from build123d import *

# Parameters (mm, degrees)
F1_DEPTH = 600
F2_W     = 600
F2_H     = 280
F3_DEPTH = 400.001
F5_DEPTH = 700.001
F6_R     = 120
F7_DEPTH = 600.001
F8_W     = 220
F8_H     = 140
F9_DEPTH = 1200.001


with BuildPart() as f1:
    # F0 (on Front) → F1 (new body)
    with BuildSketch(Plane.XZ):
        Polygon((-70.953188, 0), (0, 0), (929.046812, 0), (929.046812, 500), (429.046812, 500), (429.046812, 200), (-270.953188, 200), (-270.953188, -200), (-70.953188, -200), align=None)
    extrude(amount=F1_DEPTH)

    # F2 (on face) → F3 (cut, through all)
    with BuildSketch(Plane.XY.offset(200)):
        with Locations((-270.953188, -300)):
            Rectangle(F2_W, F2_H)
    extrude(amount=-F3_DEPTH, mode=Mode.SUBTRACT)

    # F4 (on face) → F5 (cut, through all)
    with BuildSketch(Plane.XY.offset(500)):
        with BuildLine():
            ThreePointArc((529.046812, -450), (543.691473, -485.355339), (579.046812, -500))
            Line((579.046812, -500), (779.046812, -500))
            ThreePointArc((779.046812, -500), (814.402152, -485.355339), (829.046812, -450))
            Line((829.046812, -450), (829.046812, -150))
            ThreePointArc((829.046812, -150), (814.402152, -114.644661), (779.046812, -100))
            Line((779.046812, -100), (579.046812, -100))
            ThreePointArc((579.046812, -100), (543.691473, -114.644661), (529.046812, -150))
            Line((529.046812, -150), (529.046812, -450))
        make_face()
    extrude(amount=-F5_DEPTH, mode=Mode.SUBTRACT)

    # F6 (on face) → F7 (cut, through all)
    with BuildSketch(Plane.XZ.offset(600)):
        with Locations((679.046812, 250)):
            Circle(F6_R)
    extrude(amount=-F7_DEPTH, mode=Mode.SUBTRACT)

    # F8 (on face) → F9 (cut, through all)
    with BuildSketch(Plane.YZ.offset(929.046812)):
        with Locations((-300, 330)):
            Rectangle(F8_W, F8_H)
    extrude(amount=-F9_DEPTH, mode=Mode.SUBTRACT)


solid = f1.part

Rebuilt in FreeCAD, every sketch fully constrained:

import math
import FreeCAD as App
import Part
import Sketcher
from FreeCAD import Vector


def add_polygon(sketch, points):
    """Adds a closed chain of lines whose ends are joined by coincident constraints."""
    first, n = sketch.GeometryCount, len(points)
    for a, b in zip(points, points[1:] + points[:1]):
        sketch.addGeometry(Part.LineSegment(App.Vector(*a, 0), App.Vector(*b, 0)), False)
    for i in range(n):
        sketch.addConstraint(Sketcher.Constraint("Coincident", first + i, 2, first + (i + 1) % n, 1))

doc = App.newDocument("Part")
params = doc.addObject("Spreadsheet::Sheet", "Params")
for row, (alias, value) in enumerate([
    ("sketch1_width", "1000 mm"),
    ("sketch1_width2", "500 mm"),
    ("sketch1_width3", "700 mm"),
    ("sketch1_height", "300 mm"),
    ("pad1_length", "600 mm"),
    ("sketch2_width", "600 mm"),
    ("sketch2_height", "280 mm"),
    ("sketch3_radius", "50 mm"),
    ("sketch3_width", "200 mm"),
    ("sketch3_height", "300 mm"),
    ("sketch4_diameter", "240 mm"),
    ("sketch5_width", "220 mm"),
    ("sketch5_height", "140 mm"),
], start=1):
    params.set(f"A{row}", alias)
    params.set(f"B{row}", "=" + value)
    params.setAlias(f"B{row}", alias)

body = doc.addObject("PartDesign::Body", "Body")

sketch1 = body.newObject("Sketcher::SketchObject", "Sketch")
sketch1.AttachmentSupport = (doc.getObject("XZ_Plane"), [""])
sketch1.MapMode = "FlatFace"
add_polygon(sketch1, [(-71, 0), (929, 0), (929, 500), (429, 500), (429, 200), (-271, 200), (-271, -200), (-71, -200)])
sketch1.addConstraint(Sketcher.Constraint("Horizontal", 0))
sketch1.addConstraint(Sketcher.Constraint("Vertical", 1))
sketch1.addConstraint(Sketcher.Constraint("Horizontal", 2))
sketch1.addConstraint(Sketcher.Constraint("Vertical", 3))
sketch1.addConstraint(Sketcher.Constraint("Horizontal", 4))
sketch1.addConstraint(Sketcher.Constraint("Vertical", 5))
sketch1.addConstraint(Sketcher.Constraint("Horizontal", 6))
sketch1.addConstraint(Sketcher.Constraint("Vertical", 7))
sketch1.addConstraint(Sketcher.Constraint("PointOnObject", 0, 2, -1))
sketch1.addConstraint(Sketcher.Constraint("Equal", 2, 1))
sketch1.addConstraint(Sketcher.Constraint("Equal", 6, 7))
sketch1.addConstraint(Sketcher.Constraint("DistanceX", 0, 1, 0, 2, 1000.0))
sketch1.addConstraint(Sketcher.Constraint("DistanceX", 2, 2, 2, 1, 500.0))
sketch1.addConstraint(Sketcher.Constraint("DistanceX", 4, 2, 4, 1, 700.0))
sketch1.addConstraint(Sketcher.Constraint("DistanceY", 3, 2, 3, 1, 300.0))
sketch1.addConstraint(Sketcher.Constraint("DistanceX", -1, 1, 0, 2, 929.046812))
sketch1.setExpression("Constraints[19]", "Params.sketch1_width")
sketch1.setExpression("Constraints[20]", "Params.sketch1_width2")
sketch1.setExpression("Constraints[21]", "Params.sketch1_width3")
sketch1.setExpression("Constraints[22]", "Params.sketch1_height")
pad1 = body.newObject("PartDesign::Pad", "Pad")
pad1.Profile = sketch1
pad1.setExpression("Length", "Params.pad1_length")

sketch2 = body.newObject("Sketcher::SketchObject", "Sketch001")
sketch2.AttachmentSupport = (doc.getObject("XY_Plane"), [""])
sketch2.MapMode = "FlatFace"
sketch2.AttachmentOffset = App.Placement(Vector(0, 0, 200), App.Rotation())
add_polygon(sketch2, [(-571, -160), (-571, -440), (29, -440), (29, -160)])
sketch2.addConstraint(Sketcher.Constraint("Vertical", 0))
sketch2.addConstraint(Sketcher.Constraint("Horizontal", 1))
sketch2.addConstraint(Sketcher.Constraint("Vertical", 2))
sketch2.addConstraint(Sketcher.Constraint("Horizontal", 3))
sketch2.addConstraint(Sketcher.Constraint("DistanceX", 1, 1, 1, 2, 600.0))
sketch2.addConstraint(Sketcher.Constraint("DistanceY", 0, 2, 0, 1, 280.0))
sketch2.addConstraint(Sketcher.Constraint("DistanceY", 0, 2, -1, 1, 440.0))
sketch2.addConstraint(Sketcher.Constraint("DistanceX", 0, 2, -1, 1, 570.953188))
sketch2.setExpression("Constraints[8]", "Params.sketch2_width")
sketch2.setExpression("Constraints[9]", "Params.sketch2_height")
pocket1 = body.newObject("PartDesign::Pocket", "Pocket")
pocket1.Profile = sketch2
pocket1.Type = "ThroughAll"

sketch3 = body.newObject("Sketcher::SketchObject", "Sketch002")
sketch3.AttachmentSupport = (doc.getObject("XY_Plane"), [""])
sketch3.MapMode = "FlatFace"
sketch3.AttachmentOffset = App.Placement(Vector(0, 0, 500), App.Rotation())
sketch3.addGeometry(Part.ArcOfCircle(Part.Circle(Vector(579, -450, 0), Vector(0, 0, 1), 50), math.radians(-180), math.radians(-90)), False)
sketch3.addGeometry(Part.LineSegment(Vector(579, -500, 0), Vector(779, -500, 0)), False)
sketch3.addGeometry(Part.ArcOfCircle(Part.Circle(Vector(779, -450, 0), Vector(0, 0, 1), 50), math.radians(-90), math.radians(0)), False)
sketch3.addGeometry(Part.LineSegment(Vector(829, -450, 0), Vector(829, -150, 0)), False)
sketch3.addGeometry(Part.ArcOfCircle(Part.Circle(Vector(779, -150, 0), Vector(0, 0, 1), 50), math.radians(0), math.radians(90)), False)
sketch3.addGeometry(Part.LineSegment(Vector(779, -100, 0), Vector(579, -100, 0)), False)
sketch3.addGeometry(Part.ArcOfCircle(Part.Circle(Vector(579, -150, 0), Vector(0, 0, 1), 50), math.radians(90), math.radians(180)), False)
sketch3.addGeometry(Part.LineSegment(Vector(529, -150, 0), Vector(529, -450, 0)), False)
sketch3.addConstraint(Sketcher.Constraint("Tangent", 0, 2, 1, 1))
sketch3.addConstraint(Sketcher.Constraint("Tangent", 1, 2, 2, 1))
sketch3.addConstraint(Sketcher.Constraint("Tangent", 2, 2, 3, 1))
sketch3.addConstraint(Sketcher.Constraint("Tangent", 3, 2, 4, 1))
sketch3.addConstraint(Sketcher.Constraint("Tangent", 4, 2, 5, 1))
sketch3.addConstraint(Sketcher.Constraint("Tangent", 5, 2, 6, 1))
sketch3.addConstraint(Sketcher.Constraint("Tangent", 6, 2, 7, 1))
sketch3.addConstraint(Sketcher.Constraint("Tangent", 7, 2, 0, 1))
sketch3.addConstraint(Sketcher.Constraint("Horizontal", 1))
sketch3.addConstraint(Sketcher.Constraint("Vertical", 3))
sketch3.addConstraint(Sketcher.Constraint("Horizontal", 5))
sketch3.addConstraint(Sketcher.Constraint("Vertical", 7))
sketch3.addConstraint(Sketcher.Constraint("Equal", 0, 2))
sketch3.addConstraint(Sketcher.Constraint("Equal", 2, 4))
sketch3.addConstraint(Sketcher.Constraint("Equal", 4, 6))
sketch3.addConstraint(Sketcher.Constraint("Radius", 0, 50.0))
sketch3.addConstraint(Sketcher.Constraint("DistanceX", 1, 1, 1, 2, 200.0))
sketch3.addConstraint(Sketcher.Constraint("DistanceY", 3, 1, 3, 2, 300.0))
sketch3.addConstraint(Sketcher.Constraint("DistanceY", 0, 3, -1, 1, 450.0))
sketch3.addConstraint(Sketcher.Constraint("DistanceX", -1, 1, 0, 2, 579.046812))
sketch3.setExpression("Constraints[15]", "Params.sketch3_radius")
sketch3.setExpression("Constraints[16]", "Params.sketch3_width")
sketch3.setExpression("Constraints[17]", "Params.sketch3_height")
pocket2 = body.newObject("PartDesign::Pocket", "Pocket001")
pocket2.Profile = sketch3
pocket2.Type = "ThroughAll"

sketch4 = body.newObject("Sketcher::SketchObject", "Sketch003")
sketch4.AttachmentSupport = (doc.getObject("XZ_Plane"), [""])
sketch4.MapMode = "FlatFace"
sketch4.AttachmentOffset = App.Placement(Vector(0, 0, 600), App.Rotation())
sketch4.addGeometry(Part.Circle(Vector(679, 250, 0), Vector(0, 0, 1), 120), False)
sketch4.addConstraint(Sketcher.Constraint("Diameter", 0, 240.0))
sketch4.addConstraint(Sketcher.Constraint("DistanceY", -1, 1, 0, 3, 250.0))
sketch4.addConstraint(Sketcher.Constraint("DistanceX", -1, 1, 0, 3, 679.046812))
sketch4.setExpression("Constraints[0]", "Params.sketch4_diameter")
pocket3 = body.newObject("PartDesign::Pocket", "Pocket002")
pocket3.Profile = sketch4
pocket3.Type = "ThroughAll"

sketch5 = body.newObject("Sketcher::SketchObject", "Sketch004")
sketch5.AttachmentSupport = (doc.getObject("YZ_Plane"), [""])
sketch5.MapMode = "FlatFace"
sketch5.AttachmentOffset = App.Placement(Vector(0, 0, 929.046812), App.Rotation())
add_polygon(sketch5, [(-410, 400), (-410, 260), (-190, 260), (-190, 400)])
sketch5.addConstraint(Sketcher.Constraint("Vertical", 0))
sketch5.addConstraint(Sketcher.Constraint("Horizontal", 1))
sketch5.addConstraint(Sketcher.Constraint("Vertical", 2))
sketch5.addConstraint(Sketcher.Constraint("Horizontal", 3))
sketch5.addConstraint(Sketcher.Constraint("DistanceX", 1, 1, 1, 2, 220.0))
sketch5.addConstraint(Sketcher.Constraint("DistanceY", 0, 2, 0, 1, 140.0))
sketch5.addConstraint(Sketcher.Constraint("DistanceX", 0, 2, -1, 1, 410.0))
sketch5.addConstraint(Sketcher.Constraint("DistanceY", -1, 1, 0, 2, 260.0))
sketch5.setExpression("Constraints[8]", "Params.sketch5_width")
sketch5.setExpression("Constraints[9]", "Params.sketch5_height")
pocket4 = body.newObject("PartDesign::Pocket", "Pocket003")
pocket4.Profile = sketch5
pocket4.Type = "ThroughAll"

doc.recompute()
